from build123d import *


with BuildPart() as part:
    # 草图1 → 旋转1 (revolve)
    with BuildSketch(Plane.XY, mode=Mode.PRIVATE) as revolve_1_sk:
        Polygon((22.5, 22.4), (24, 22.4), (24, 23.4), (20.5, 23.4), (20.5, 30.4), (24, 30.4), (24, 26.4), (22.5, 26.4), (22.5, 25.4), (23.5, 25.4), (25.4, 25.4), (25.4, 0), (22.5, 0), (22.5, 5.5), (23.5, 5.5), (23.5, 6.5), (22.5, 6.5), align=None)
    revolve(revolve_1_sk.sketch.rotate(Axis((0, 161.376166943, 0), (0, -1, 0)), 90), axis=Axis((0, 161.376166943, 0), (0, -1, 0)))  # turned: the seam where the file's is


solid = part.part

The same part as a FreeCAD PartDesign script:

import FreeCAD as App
import Part
import Sketcher

V = App.Vector

doc = App.newDocument("Part")
body = doc.addObject("PartDesign::Body", "Body")

sketch1 = body.newObject("Sketcher::SketchObject", "Sketch")
sketch1.AttachmentSupport = (doc.getObject("XY_Plane"), [""])
sketch1.MapMode = "FlatFace"
sketch1.addGeometry([
    Part.LineSegment(V(24, 22.4, 0), V(22.5, 22.4, 0)),
    Part.LineSegment(V(22.5, 22.4, 0), V(22.5, 6.5, 0)),
    Part.LineSegment(V(22.5, 6.5, 0), V(23.5, 6.5, 0)),
    Part.LineSegment(V(23.5, 6.5, 0), V(23.5, 5.5, 0)),
    Part.LineSegment(V(23.5, 5.5, 0), V(22.5, 5.5, 0)),
    Part.LineSegment(V(22.5, 5.5, 0), V(22.5, 0, 0)),
    Part.LineSegment(V(22.5, 0, 0), V(25.4, 0, 0)),
    Part.LineSegment(V(25.4, 0, 0), V(25.4, 25.4, 0)),
    Part.LineSegment(V(25.4, 25.4, 0), V(22.5, 25.4, 0)),
    Part.LineSegment(V(22.5, 25.4, 0), V(22.5, 26.4, 0)),
    Part.LineSegment(V(22.5, 26.4, 0), V(24, 26.4, 0)),
    Part.LineSegment(V(24, 26.4, 0), V(24, 30.4, 0)),
    Part.LineSegment(V(24, 30.4, 0), V(20.5, 30.4, 0)),
    Part.LineSegment(V(20.5, 30.4, 0), V(20.5, 23.4, 0)),
    Part.LineSegment(V(20.5, 23.4, 0), V(24, 23.4, 0)),
    Part.LineSegment(V(24, 23.4, 0), V(24, 22.4, 0)),
], False)
sketch1.addConstraint([
    Sketcher.Constraint("Coincident", 0, 2, 1, 1),
    Sketcher.Constraint("Coincident", 1, 2, 2, 1),
    Sketcher.Constraint("Coincident", 2, 2, 3, 1),
    Sketcher.Constraint("Coincident", 3, 2, 4, 1),
    Sketcher.Constraint("Coincident", 4, 2, 5, 1),
    Sketcher.Constraint("Coincident", 5, 2, 6, 1),
    Sketcher.Constraint("Coincident", 6, 2, 7, 1),
    Sketcher.Constraint("Coincident", 7, 2, 8, 1),
    Sketcher.Constraint("Coincident", 8, 2, 9, 1),
    Sketcher.Constraint("Coincident", 9, 2, 10, 1),
    Sketcher.Constraint("Coincident", 10, 2, 11, 1),
    Sketcher.Constraint("Coincident", 11, 2, 12, 1),
    Sketcher.Constraint("Coincident", 12, 2, 13, 1),
    Sketcher.Constraint("Coincident", 13, 2, 14, 1),
    Sketcher.Constraint("Coincident", 14, 2, 15, 1),
    Sketcher.Constraint("Coincident", 15, 2, 0, 1),
    Sketcher.Constraint("Horizontal", 0),
    Sketcher.Constraint("Vertical", 1),
    Sketcher.Constraint("Horizontal", 2),
    Sketcher.Constraint("Vertical", 3),
    Sketcher.Constraint("Horizontal", 4),
    Sketcher.Constraint("Vertical", 5),
    Sketcher.Constraint("Horizontal", 6),
    Sketcher.Constraint("Vertical", 7),
    Sketcher.Constraint("Horizontal", 8),
    Sketcher.Constraint("Vertical", 9),
    Sketcher.Constraint("Horizontal", 10),
    Sketcher.Constraint("Vertical", 11),
    Sketcher.Constraint("Horizontal", 12),
    Sketcher.Constraint("Vertical", 13),
    Sketcher.Constraint("Horizontal", 14),
    Sketcher.Constraint("Vertical", 15),
    Sketcher.Constraint("PointOnObject", 5, 2, -1),
    Sketcher.Constraint("Vertical", 1, 2, 4, 2),
    Sketcher.Constraint("Vertical", 5, 2, 8, 2),
    Sketcher.Constraint("Vertical", 11, 2, 14, 2),
    Sketcher.Constraint("Equal", 4, 3),
    Sketcher.Constraint("Equal", 3, 9),
    Sketcher.Constraint("Equal", 9, 15),
    Sketcher.Constraint("DistanceX", 2, 1, 2, 2, 1.0),
    Sketcher.Constraint("DistanceY", 11, 1, 11, 2, 4.0),
    Sketcher.Constraint("DistanceY", 13, 2, 13, 1, 7.0),
    Sketcher.Constraint("DistanceX", 0, 2, 0, 1, 1.5),
    Sketcher.Constraint("DistanceX", 6, 1, 6, 2, 2.9),
    Sketcher.Constraint("DistanceX", 12, 2, 12, 1, 3.5),
    Sketcher.Constraint("DistanceY", 1, 2, 1, 1, 15.9),
    Sketcher.Constraint("DistanceY", 5, 2, 5, 1, 5.5),
    Sketcher.Constraint("DistanceX", -1, 1, 10, 2, 24.0),
])
revolution = body.newObject("PartDesign::Revolution", "Revolution")
revolution.Profile = sketch1
revolution.ReferenceAxis = (sketch1, ["V_Axis"])
revolution.Angle = 360

doc.recompute()
